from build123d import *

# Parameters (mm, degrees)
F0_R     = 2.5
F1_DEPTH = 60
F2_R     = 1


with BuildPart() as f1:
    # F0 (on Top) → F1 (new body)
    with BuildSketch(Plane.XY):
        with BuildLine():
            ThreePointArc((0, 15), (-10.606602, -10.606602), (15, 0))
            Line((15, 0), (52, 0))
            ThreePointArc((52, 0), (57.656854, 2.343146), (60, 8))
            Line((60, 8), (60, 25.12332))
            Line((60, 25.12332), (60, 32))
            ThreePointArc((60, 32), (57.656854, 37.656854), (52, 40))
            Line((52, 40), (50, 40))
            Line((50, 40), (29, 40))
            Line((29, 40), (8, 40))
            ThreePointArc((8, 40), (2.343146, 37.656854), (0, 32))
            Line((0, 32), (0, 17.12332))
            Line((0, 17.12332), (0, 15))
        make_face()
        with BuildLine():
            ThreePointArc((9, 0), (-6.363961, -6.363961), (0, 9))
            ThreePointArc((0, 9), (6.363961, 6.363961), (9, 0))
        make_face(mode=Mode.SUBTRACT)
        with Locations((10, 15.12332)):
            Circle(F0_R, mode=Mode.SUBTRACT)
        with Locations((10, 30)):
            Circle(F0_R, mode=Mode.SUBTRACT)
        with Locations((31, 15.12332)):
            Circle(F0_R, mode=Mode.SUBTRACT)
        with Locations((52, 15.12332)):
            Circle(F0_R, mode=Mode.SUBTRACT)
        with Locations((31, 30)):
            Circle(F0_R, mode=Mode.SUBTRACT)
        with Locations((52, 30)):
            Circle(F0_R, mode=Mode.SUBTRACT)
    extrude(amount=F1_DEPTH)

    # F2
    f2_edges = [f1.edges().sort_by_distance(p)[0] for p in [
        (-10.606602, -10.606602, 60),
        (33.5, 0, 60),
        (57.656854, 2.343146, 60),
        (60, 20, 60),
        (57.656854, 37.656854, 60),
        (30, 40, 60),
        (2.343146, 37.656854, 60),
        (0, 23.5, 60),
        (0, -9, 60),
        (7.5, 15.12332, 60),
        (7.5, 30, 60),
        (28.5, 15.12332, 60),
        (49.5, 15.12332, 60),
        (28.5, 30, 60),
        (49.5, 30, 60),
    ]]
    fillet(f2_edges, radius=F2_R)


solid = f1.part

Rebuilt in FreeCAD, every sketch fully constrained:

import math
import FreeCAD as App
import Part
import Sketcher
from FreeCAD import Vector
Q = App.Units.Quantity


def edges_at(feature, points):
    """Names of the edges that pass closest to the given points."""
    edges = feature.Shape.Edges
    near = lambda p: min(range(len(edges)), key=lambda i: edges[i].distToShape(Part.Vertex(*p))[0])
    return sorted({f"Edge{near(p) + 1}" for p in points})

doc = App.newDocument("Part")
body = doc.addObject("PartDesign::Body", "Body")

# Sketch on XY plane
sketch1 = doc.addObject("Sketcher::SketchObject", "Sketch")
body.addObject(sketch1)
sketch1.AttachmentSupport = (doc.XY_Plane, [""])
sketch1.MapMode = "FlatFace"
sketch1.addGeometry([
    Part.ArcOfCircle(Part.Circle(Vector(0, 0, 0), Vector(0, 0, 1), 15), math.radians(90), math.radians(360)),  # 0
    Part.LineSegment(Vector(15, 0, 0), Vector(52, 0, 0)),  # 1
    Part.ArcOfCircle(Part.Circle(Vector(52, 8, 0), Vector(0, 0, 1), 8), math.radians(-90), math.radians(0)),  # 2
    Part.LineSegment(Vector(60, 8, 0), Vector(60, 32, 0)),  # 3
    Part.ArcOfCircle(Part.Circle(Vector(52, 32, 0), Vector(0, 0, 1), 8), math.radians(0), math.radians(90)),  # 4
    Part.LineSegment(Vector(52, 40, 0), Vector(8, 40, 0)),  # 5
    Part.ArcOfCircle(Part.Circle(Vector(8, 32, 0), Vector(0, 0, 1), 8), math.radians(90), math.radians(180)),  # 6
    Part.LineSegment(Vector(0, 32, 0), Vector(0, 15, 0)),  # 7
    Part.ArcOfCircle(Part.Circle(Vector(0, 0, 0), Vector(0, 0, 1), 9), math.radians(0), math.radians(90)),  # 8
    Part.ArcOfCircle(Part.Circle(Vector(0, 0, 0), Vector(0, 0, 1), 9), math.radians(90), math.radians(360)),  # 9
    Part.Circle(Vector(10, 15.1, 0), Vector(0, 0, 1), 2.5),  # 10
    Part.Circle(Vector(10, 30, 0), Vector(0, 0, 1), 2.5),  # 11
    Part.Circle(Vector(31, 15.1, 0), Vector(0, 0, 1), 2.5),  # 12
    Part.Circle(Vector(52, 15.1, 0), Vector(0, 0, 1), 2.5),  # 13
    Part.Circle(Vector(31, 30, 0), Vector(0, 0, 1), 2.5),  # 14
    Part.Circle(Vector(52, 30, 0), Vector(0, 0, 1), 2.5),  # 15
], False)
sketch1.addConstraint([
    Sketcher.Constraint("Coincident", 0, 2, 1, 1),
    Sketcher.Constraint("Tangent", 1, 2, 2, 1),
    Sketcher.Constraint("Tangent", 2, 2, 3, 1),
    Sketcher.Constraint("Tangent", 3, 2, 4, 1),
    Sketcher.Constraint("Tangent", 4, 2, 5, 1),
    Sketcher.Constraint("Tangent", 5, 2, 6, 1),
    Sketcher.Constraint("Tangent", 6, 2, 7, 1),
    Sketcher.Constraint("Coincident", 7, 2, 0, 1),
    Sketcher.Constraint("Tangent", 8, 1, 9, 2),
    Sketcher.Constraint("Coincident", 9, 1, 8, 2),
    Sketcher.Constraint("Horizontal", 1),
    Sketcher.Constraint("Vertical", 3),
    Sketcher.Constraint("Horizontal", 5),
    Sketcher.Constraint("Vertical", 7),
    Sketcher.Constraint("Coincident", 0, 3, -1, 1),
    Sketcher.Constraint("Coincident", 8, 3, -1, 1),
    Sketcher.Constraint("Equal", 2, 4),
    Sketcher.Constraint("Equal", 4, 6),
    Sketcher.Constraint("Equal", 10, 11),
    Sketcher.Constraint("Equal", 11, 12),
    Sketcher.Constraint("Equal", 12, 13),
    Sketcher.Constraint("Equal", 13, 14),
    Sketcher.Constraint("Equal", 14, 15),
    Sketcher.Constraint("PointOnObject", 0, 2, -1),
    Sketcher.Constraint("PointOnObject", 6, 2, -2),
    Sketcher.Constraint("PointOnObject", 8, 1, -1),
    Sketcher.Constraint("PointOnObject", 9, 1, -2),
    Sketcher.Constraint("Horizontal", 10, 3, 12, 3),
    Sketcher.Constraint("Horizontal", 12, 3, 13, 3),
    Sketcher.Constraint("Horizontal", 11, 3, 14, 3),
    Sketcher.Constraint("Horizontal", 14, 3, 15, 3),
    Sketcher.Constraint("Vertical", 10, 3, 11, 3),
    Sketcher.Constraint("Vertical", 4, 3, 13, 3),
    Sketcher.Constraint("Vertical", 12, 3, 14, 3),
    Sketcher.Constraint("Vertical", 13, 3, 15, 3),
    Sketcher.Constraint("Diameter", 10, Q("5 mm")),
    Sketcher.Constraint("Radius", 0, Q("15 mm")),
    Sketcher.Constraint("Radius", 2, Q("8.000001 mm")),
    Sketcher.Constraint("Radius", 8, Q("9 mm")),
    Sketcher.Constraint("DistanceX", 1, 1, 1, 2, Q("37 mm")),
    Sketcher.Constraint("DistanceY", 3, 1, 3, 2, Q("24 mm")),
    Sketcher.Constraint("DistanceX", -1, 1, 10, 3, Q("10 mm")),
    Sketcher.Constraint("DistanceY", -1, 1, 11, 3, Q("30 mm")),
    Sketcher.Constraint("DistanceX", -1, 1, 12, 3, Q("31 mm")),
    Sketcher.Constraint("DistanceY", -1, 1, 10, 3, Q("15.12332 mm")),
])
pad1 = doc.addObject("PartDesign::Pad", "Pad")
body.addObject(pad1)
pad1.Profile = sketch1
pad1.Length = 60
doc.recompute()

fillet = doc.addObject("PartDesign::Fillet", "Fillet")
body.addObject(fillet)
fillet.Base = (pad1, edges_at(pad1, [
    (-10.607, -10.607, 60),
    (33.5, 0, 60),
    (57.657, 2.343, 60),
    (60, 20, 60),
    (57.657, 37.657, 60),
    (30, 40, 60),
    (2.343, 37.657, 60),
    (0, 23.5, 60),
    (-6.364, -6.364, 60),
    (7.5, 15.123, 60),
    (7.5, 30, 60),
    (28.5, 15.123, 60),
    (49.5, 15.123, 60),
    (28.5, 30, 60),
    (49.5, 30, 60),
]))
fillet.Radius = 1

doc.recompute()
